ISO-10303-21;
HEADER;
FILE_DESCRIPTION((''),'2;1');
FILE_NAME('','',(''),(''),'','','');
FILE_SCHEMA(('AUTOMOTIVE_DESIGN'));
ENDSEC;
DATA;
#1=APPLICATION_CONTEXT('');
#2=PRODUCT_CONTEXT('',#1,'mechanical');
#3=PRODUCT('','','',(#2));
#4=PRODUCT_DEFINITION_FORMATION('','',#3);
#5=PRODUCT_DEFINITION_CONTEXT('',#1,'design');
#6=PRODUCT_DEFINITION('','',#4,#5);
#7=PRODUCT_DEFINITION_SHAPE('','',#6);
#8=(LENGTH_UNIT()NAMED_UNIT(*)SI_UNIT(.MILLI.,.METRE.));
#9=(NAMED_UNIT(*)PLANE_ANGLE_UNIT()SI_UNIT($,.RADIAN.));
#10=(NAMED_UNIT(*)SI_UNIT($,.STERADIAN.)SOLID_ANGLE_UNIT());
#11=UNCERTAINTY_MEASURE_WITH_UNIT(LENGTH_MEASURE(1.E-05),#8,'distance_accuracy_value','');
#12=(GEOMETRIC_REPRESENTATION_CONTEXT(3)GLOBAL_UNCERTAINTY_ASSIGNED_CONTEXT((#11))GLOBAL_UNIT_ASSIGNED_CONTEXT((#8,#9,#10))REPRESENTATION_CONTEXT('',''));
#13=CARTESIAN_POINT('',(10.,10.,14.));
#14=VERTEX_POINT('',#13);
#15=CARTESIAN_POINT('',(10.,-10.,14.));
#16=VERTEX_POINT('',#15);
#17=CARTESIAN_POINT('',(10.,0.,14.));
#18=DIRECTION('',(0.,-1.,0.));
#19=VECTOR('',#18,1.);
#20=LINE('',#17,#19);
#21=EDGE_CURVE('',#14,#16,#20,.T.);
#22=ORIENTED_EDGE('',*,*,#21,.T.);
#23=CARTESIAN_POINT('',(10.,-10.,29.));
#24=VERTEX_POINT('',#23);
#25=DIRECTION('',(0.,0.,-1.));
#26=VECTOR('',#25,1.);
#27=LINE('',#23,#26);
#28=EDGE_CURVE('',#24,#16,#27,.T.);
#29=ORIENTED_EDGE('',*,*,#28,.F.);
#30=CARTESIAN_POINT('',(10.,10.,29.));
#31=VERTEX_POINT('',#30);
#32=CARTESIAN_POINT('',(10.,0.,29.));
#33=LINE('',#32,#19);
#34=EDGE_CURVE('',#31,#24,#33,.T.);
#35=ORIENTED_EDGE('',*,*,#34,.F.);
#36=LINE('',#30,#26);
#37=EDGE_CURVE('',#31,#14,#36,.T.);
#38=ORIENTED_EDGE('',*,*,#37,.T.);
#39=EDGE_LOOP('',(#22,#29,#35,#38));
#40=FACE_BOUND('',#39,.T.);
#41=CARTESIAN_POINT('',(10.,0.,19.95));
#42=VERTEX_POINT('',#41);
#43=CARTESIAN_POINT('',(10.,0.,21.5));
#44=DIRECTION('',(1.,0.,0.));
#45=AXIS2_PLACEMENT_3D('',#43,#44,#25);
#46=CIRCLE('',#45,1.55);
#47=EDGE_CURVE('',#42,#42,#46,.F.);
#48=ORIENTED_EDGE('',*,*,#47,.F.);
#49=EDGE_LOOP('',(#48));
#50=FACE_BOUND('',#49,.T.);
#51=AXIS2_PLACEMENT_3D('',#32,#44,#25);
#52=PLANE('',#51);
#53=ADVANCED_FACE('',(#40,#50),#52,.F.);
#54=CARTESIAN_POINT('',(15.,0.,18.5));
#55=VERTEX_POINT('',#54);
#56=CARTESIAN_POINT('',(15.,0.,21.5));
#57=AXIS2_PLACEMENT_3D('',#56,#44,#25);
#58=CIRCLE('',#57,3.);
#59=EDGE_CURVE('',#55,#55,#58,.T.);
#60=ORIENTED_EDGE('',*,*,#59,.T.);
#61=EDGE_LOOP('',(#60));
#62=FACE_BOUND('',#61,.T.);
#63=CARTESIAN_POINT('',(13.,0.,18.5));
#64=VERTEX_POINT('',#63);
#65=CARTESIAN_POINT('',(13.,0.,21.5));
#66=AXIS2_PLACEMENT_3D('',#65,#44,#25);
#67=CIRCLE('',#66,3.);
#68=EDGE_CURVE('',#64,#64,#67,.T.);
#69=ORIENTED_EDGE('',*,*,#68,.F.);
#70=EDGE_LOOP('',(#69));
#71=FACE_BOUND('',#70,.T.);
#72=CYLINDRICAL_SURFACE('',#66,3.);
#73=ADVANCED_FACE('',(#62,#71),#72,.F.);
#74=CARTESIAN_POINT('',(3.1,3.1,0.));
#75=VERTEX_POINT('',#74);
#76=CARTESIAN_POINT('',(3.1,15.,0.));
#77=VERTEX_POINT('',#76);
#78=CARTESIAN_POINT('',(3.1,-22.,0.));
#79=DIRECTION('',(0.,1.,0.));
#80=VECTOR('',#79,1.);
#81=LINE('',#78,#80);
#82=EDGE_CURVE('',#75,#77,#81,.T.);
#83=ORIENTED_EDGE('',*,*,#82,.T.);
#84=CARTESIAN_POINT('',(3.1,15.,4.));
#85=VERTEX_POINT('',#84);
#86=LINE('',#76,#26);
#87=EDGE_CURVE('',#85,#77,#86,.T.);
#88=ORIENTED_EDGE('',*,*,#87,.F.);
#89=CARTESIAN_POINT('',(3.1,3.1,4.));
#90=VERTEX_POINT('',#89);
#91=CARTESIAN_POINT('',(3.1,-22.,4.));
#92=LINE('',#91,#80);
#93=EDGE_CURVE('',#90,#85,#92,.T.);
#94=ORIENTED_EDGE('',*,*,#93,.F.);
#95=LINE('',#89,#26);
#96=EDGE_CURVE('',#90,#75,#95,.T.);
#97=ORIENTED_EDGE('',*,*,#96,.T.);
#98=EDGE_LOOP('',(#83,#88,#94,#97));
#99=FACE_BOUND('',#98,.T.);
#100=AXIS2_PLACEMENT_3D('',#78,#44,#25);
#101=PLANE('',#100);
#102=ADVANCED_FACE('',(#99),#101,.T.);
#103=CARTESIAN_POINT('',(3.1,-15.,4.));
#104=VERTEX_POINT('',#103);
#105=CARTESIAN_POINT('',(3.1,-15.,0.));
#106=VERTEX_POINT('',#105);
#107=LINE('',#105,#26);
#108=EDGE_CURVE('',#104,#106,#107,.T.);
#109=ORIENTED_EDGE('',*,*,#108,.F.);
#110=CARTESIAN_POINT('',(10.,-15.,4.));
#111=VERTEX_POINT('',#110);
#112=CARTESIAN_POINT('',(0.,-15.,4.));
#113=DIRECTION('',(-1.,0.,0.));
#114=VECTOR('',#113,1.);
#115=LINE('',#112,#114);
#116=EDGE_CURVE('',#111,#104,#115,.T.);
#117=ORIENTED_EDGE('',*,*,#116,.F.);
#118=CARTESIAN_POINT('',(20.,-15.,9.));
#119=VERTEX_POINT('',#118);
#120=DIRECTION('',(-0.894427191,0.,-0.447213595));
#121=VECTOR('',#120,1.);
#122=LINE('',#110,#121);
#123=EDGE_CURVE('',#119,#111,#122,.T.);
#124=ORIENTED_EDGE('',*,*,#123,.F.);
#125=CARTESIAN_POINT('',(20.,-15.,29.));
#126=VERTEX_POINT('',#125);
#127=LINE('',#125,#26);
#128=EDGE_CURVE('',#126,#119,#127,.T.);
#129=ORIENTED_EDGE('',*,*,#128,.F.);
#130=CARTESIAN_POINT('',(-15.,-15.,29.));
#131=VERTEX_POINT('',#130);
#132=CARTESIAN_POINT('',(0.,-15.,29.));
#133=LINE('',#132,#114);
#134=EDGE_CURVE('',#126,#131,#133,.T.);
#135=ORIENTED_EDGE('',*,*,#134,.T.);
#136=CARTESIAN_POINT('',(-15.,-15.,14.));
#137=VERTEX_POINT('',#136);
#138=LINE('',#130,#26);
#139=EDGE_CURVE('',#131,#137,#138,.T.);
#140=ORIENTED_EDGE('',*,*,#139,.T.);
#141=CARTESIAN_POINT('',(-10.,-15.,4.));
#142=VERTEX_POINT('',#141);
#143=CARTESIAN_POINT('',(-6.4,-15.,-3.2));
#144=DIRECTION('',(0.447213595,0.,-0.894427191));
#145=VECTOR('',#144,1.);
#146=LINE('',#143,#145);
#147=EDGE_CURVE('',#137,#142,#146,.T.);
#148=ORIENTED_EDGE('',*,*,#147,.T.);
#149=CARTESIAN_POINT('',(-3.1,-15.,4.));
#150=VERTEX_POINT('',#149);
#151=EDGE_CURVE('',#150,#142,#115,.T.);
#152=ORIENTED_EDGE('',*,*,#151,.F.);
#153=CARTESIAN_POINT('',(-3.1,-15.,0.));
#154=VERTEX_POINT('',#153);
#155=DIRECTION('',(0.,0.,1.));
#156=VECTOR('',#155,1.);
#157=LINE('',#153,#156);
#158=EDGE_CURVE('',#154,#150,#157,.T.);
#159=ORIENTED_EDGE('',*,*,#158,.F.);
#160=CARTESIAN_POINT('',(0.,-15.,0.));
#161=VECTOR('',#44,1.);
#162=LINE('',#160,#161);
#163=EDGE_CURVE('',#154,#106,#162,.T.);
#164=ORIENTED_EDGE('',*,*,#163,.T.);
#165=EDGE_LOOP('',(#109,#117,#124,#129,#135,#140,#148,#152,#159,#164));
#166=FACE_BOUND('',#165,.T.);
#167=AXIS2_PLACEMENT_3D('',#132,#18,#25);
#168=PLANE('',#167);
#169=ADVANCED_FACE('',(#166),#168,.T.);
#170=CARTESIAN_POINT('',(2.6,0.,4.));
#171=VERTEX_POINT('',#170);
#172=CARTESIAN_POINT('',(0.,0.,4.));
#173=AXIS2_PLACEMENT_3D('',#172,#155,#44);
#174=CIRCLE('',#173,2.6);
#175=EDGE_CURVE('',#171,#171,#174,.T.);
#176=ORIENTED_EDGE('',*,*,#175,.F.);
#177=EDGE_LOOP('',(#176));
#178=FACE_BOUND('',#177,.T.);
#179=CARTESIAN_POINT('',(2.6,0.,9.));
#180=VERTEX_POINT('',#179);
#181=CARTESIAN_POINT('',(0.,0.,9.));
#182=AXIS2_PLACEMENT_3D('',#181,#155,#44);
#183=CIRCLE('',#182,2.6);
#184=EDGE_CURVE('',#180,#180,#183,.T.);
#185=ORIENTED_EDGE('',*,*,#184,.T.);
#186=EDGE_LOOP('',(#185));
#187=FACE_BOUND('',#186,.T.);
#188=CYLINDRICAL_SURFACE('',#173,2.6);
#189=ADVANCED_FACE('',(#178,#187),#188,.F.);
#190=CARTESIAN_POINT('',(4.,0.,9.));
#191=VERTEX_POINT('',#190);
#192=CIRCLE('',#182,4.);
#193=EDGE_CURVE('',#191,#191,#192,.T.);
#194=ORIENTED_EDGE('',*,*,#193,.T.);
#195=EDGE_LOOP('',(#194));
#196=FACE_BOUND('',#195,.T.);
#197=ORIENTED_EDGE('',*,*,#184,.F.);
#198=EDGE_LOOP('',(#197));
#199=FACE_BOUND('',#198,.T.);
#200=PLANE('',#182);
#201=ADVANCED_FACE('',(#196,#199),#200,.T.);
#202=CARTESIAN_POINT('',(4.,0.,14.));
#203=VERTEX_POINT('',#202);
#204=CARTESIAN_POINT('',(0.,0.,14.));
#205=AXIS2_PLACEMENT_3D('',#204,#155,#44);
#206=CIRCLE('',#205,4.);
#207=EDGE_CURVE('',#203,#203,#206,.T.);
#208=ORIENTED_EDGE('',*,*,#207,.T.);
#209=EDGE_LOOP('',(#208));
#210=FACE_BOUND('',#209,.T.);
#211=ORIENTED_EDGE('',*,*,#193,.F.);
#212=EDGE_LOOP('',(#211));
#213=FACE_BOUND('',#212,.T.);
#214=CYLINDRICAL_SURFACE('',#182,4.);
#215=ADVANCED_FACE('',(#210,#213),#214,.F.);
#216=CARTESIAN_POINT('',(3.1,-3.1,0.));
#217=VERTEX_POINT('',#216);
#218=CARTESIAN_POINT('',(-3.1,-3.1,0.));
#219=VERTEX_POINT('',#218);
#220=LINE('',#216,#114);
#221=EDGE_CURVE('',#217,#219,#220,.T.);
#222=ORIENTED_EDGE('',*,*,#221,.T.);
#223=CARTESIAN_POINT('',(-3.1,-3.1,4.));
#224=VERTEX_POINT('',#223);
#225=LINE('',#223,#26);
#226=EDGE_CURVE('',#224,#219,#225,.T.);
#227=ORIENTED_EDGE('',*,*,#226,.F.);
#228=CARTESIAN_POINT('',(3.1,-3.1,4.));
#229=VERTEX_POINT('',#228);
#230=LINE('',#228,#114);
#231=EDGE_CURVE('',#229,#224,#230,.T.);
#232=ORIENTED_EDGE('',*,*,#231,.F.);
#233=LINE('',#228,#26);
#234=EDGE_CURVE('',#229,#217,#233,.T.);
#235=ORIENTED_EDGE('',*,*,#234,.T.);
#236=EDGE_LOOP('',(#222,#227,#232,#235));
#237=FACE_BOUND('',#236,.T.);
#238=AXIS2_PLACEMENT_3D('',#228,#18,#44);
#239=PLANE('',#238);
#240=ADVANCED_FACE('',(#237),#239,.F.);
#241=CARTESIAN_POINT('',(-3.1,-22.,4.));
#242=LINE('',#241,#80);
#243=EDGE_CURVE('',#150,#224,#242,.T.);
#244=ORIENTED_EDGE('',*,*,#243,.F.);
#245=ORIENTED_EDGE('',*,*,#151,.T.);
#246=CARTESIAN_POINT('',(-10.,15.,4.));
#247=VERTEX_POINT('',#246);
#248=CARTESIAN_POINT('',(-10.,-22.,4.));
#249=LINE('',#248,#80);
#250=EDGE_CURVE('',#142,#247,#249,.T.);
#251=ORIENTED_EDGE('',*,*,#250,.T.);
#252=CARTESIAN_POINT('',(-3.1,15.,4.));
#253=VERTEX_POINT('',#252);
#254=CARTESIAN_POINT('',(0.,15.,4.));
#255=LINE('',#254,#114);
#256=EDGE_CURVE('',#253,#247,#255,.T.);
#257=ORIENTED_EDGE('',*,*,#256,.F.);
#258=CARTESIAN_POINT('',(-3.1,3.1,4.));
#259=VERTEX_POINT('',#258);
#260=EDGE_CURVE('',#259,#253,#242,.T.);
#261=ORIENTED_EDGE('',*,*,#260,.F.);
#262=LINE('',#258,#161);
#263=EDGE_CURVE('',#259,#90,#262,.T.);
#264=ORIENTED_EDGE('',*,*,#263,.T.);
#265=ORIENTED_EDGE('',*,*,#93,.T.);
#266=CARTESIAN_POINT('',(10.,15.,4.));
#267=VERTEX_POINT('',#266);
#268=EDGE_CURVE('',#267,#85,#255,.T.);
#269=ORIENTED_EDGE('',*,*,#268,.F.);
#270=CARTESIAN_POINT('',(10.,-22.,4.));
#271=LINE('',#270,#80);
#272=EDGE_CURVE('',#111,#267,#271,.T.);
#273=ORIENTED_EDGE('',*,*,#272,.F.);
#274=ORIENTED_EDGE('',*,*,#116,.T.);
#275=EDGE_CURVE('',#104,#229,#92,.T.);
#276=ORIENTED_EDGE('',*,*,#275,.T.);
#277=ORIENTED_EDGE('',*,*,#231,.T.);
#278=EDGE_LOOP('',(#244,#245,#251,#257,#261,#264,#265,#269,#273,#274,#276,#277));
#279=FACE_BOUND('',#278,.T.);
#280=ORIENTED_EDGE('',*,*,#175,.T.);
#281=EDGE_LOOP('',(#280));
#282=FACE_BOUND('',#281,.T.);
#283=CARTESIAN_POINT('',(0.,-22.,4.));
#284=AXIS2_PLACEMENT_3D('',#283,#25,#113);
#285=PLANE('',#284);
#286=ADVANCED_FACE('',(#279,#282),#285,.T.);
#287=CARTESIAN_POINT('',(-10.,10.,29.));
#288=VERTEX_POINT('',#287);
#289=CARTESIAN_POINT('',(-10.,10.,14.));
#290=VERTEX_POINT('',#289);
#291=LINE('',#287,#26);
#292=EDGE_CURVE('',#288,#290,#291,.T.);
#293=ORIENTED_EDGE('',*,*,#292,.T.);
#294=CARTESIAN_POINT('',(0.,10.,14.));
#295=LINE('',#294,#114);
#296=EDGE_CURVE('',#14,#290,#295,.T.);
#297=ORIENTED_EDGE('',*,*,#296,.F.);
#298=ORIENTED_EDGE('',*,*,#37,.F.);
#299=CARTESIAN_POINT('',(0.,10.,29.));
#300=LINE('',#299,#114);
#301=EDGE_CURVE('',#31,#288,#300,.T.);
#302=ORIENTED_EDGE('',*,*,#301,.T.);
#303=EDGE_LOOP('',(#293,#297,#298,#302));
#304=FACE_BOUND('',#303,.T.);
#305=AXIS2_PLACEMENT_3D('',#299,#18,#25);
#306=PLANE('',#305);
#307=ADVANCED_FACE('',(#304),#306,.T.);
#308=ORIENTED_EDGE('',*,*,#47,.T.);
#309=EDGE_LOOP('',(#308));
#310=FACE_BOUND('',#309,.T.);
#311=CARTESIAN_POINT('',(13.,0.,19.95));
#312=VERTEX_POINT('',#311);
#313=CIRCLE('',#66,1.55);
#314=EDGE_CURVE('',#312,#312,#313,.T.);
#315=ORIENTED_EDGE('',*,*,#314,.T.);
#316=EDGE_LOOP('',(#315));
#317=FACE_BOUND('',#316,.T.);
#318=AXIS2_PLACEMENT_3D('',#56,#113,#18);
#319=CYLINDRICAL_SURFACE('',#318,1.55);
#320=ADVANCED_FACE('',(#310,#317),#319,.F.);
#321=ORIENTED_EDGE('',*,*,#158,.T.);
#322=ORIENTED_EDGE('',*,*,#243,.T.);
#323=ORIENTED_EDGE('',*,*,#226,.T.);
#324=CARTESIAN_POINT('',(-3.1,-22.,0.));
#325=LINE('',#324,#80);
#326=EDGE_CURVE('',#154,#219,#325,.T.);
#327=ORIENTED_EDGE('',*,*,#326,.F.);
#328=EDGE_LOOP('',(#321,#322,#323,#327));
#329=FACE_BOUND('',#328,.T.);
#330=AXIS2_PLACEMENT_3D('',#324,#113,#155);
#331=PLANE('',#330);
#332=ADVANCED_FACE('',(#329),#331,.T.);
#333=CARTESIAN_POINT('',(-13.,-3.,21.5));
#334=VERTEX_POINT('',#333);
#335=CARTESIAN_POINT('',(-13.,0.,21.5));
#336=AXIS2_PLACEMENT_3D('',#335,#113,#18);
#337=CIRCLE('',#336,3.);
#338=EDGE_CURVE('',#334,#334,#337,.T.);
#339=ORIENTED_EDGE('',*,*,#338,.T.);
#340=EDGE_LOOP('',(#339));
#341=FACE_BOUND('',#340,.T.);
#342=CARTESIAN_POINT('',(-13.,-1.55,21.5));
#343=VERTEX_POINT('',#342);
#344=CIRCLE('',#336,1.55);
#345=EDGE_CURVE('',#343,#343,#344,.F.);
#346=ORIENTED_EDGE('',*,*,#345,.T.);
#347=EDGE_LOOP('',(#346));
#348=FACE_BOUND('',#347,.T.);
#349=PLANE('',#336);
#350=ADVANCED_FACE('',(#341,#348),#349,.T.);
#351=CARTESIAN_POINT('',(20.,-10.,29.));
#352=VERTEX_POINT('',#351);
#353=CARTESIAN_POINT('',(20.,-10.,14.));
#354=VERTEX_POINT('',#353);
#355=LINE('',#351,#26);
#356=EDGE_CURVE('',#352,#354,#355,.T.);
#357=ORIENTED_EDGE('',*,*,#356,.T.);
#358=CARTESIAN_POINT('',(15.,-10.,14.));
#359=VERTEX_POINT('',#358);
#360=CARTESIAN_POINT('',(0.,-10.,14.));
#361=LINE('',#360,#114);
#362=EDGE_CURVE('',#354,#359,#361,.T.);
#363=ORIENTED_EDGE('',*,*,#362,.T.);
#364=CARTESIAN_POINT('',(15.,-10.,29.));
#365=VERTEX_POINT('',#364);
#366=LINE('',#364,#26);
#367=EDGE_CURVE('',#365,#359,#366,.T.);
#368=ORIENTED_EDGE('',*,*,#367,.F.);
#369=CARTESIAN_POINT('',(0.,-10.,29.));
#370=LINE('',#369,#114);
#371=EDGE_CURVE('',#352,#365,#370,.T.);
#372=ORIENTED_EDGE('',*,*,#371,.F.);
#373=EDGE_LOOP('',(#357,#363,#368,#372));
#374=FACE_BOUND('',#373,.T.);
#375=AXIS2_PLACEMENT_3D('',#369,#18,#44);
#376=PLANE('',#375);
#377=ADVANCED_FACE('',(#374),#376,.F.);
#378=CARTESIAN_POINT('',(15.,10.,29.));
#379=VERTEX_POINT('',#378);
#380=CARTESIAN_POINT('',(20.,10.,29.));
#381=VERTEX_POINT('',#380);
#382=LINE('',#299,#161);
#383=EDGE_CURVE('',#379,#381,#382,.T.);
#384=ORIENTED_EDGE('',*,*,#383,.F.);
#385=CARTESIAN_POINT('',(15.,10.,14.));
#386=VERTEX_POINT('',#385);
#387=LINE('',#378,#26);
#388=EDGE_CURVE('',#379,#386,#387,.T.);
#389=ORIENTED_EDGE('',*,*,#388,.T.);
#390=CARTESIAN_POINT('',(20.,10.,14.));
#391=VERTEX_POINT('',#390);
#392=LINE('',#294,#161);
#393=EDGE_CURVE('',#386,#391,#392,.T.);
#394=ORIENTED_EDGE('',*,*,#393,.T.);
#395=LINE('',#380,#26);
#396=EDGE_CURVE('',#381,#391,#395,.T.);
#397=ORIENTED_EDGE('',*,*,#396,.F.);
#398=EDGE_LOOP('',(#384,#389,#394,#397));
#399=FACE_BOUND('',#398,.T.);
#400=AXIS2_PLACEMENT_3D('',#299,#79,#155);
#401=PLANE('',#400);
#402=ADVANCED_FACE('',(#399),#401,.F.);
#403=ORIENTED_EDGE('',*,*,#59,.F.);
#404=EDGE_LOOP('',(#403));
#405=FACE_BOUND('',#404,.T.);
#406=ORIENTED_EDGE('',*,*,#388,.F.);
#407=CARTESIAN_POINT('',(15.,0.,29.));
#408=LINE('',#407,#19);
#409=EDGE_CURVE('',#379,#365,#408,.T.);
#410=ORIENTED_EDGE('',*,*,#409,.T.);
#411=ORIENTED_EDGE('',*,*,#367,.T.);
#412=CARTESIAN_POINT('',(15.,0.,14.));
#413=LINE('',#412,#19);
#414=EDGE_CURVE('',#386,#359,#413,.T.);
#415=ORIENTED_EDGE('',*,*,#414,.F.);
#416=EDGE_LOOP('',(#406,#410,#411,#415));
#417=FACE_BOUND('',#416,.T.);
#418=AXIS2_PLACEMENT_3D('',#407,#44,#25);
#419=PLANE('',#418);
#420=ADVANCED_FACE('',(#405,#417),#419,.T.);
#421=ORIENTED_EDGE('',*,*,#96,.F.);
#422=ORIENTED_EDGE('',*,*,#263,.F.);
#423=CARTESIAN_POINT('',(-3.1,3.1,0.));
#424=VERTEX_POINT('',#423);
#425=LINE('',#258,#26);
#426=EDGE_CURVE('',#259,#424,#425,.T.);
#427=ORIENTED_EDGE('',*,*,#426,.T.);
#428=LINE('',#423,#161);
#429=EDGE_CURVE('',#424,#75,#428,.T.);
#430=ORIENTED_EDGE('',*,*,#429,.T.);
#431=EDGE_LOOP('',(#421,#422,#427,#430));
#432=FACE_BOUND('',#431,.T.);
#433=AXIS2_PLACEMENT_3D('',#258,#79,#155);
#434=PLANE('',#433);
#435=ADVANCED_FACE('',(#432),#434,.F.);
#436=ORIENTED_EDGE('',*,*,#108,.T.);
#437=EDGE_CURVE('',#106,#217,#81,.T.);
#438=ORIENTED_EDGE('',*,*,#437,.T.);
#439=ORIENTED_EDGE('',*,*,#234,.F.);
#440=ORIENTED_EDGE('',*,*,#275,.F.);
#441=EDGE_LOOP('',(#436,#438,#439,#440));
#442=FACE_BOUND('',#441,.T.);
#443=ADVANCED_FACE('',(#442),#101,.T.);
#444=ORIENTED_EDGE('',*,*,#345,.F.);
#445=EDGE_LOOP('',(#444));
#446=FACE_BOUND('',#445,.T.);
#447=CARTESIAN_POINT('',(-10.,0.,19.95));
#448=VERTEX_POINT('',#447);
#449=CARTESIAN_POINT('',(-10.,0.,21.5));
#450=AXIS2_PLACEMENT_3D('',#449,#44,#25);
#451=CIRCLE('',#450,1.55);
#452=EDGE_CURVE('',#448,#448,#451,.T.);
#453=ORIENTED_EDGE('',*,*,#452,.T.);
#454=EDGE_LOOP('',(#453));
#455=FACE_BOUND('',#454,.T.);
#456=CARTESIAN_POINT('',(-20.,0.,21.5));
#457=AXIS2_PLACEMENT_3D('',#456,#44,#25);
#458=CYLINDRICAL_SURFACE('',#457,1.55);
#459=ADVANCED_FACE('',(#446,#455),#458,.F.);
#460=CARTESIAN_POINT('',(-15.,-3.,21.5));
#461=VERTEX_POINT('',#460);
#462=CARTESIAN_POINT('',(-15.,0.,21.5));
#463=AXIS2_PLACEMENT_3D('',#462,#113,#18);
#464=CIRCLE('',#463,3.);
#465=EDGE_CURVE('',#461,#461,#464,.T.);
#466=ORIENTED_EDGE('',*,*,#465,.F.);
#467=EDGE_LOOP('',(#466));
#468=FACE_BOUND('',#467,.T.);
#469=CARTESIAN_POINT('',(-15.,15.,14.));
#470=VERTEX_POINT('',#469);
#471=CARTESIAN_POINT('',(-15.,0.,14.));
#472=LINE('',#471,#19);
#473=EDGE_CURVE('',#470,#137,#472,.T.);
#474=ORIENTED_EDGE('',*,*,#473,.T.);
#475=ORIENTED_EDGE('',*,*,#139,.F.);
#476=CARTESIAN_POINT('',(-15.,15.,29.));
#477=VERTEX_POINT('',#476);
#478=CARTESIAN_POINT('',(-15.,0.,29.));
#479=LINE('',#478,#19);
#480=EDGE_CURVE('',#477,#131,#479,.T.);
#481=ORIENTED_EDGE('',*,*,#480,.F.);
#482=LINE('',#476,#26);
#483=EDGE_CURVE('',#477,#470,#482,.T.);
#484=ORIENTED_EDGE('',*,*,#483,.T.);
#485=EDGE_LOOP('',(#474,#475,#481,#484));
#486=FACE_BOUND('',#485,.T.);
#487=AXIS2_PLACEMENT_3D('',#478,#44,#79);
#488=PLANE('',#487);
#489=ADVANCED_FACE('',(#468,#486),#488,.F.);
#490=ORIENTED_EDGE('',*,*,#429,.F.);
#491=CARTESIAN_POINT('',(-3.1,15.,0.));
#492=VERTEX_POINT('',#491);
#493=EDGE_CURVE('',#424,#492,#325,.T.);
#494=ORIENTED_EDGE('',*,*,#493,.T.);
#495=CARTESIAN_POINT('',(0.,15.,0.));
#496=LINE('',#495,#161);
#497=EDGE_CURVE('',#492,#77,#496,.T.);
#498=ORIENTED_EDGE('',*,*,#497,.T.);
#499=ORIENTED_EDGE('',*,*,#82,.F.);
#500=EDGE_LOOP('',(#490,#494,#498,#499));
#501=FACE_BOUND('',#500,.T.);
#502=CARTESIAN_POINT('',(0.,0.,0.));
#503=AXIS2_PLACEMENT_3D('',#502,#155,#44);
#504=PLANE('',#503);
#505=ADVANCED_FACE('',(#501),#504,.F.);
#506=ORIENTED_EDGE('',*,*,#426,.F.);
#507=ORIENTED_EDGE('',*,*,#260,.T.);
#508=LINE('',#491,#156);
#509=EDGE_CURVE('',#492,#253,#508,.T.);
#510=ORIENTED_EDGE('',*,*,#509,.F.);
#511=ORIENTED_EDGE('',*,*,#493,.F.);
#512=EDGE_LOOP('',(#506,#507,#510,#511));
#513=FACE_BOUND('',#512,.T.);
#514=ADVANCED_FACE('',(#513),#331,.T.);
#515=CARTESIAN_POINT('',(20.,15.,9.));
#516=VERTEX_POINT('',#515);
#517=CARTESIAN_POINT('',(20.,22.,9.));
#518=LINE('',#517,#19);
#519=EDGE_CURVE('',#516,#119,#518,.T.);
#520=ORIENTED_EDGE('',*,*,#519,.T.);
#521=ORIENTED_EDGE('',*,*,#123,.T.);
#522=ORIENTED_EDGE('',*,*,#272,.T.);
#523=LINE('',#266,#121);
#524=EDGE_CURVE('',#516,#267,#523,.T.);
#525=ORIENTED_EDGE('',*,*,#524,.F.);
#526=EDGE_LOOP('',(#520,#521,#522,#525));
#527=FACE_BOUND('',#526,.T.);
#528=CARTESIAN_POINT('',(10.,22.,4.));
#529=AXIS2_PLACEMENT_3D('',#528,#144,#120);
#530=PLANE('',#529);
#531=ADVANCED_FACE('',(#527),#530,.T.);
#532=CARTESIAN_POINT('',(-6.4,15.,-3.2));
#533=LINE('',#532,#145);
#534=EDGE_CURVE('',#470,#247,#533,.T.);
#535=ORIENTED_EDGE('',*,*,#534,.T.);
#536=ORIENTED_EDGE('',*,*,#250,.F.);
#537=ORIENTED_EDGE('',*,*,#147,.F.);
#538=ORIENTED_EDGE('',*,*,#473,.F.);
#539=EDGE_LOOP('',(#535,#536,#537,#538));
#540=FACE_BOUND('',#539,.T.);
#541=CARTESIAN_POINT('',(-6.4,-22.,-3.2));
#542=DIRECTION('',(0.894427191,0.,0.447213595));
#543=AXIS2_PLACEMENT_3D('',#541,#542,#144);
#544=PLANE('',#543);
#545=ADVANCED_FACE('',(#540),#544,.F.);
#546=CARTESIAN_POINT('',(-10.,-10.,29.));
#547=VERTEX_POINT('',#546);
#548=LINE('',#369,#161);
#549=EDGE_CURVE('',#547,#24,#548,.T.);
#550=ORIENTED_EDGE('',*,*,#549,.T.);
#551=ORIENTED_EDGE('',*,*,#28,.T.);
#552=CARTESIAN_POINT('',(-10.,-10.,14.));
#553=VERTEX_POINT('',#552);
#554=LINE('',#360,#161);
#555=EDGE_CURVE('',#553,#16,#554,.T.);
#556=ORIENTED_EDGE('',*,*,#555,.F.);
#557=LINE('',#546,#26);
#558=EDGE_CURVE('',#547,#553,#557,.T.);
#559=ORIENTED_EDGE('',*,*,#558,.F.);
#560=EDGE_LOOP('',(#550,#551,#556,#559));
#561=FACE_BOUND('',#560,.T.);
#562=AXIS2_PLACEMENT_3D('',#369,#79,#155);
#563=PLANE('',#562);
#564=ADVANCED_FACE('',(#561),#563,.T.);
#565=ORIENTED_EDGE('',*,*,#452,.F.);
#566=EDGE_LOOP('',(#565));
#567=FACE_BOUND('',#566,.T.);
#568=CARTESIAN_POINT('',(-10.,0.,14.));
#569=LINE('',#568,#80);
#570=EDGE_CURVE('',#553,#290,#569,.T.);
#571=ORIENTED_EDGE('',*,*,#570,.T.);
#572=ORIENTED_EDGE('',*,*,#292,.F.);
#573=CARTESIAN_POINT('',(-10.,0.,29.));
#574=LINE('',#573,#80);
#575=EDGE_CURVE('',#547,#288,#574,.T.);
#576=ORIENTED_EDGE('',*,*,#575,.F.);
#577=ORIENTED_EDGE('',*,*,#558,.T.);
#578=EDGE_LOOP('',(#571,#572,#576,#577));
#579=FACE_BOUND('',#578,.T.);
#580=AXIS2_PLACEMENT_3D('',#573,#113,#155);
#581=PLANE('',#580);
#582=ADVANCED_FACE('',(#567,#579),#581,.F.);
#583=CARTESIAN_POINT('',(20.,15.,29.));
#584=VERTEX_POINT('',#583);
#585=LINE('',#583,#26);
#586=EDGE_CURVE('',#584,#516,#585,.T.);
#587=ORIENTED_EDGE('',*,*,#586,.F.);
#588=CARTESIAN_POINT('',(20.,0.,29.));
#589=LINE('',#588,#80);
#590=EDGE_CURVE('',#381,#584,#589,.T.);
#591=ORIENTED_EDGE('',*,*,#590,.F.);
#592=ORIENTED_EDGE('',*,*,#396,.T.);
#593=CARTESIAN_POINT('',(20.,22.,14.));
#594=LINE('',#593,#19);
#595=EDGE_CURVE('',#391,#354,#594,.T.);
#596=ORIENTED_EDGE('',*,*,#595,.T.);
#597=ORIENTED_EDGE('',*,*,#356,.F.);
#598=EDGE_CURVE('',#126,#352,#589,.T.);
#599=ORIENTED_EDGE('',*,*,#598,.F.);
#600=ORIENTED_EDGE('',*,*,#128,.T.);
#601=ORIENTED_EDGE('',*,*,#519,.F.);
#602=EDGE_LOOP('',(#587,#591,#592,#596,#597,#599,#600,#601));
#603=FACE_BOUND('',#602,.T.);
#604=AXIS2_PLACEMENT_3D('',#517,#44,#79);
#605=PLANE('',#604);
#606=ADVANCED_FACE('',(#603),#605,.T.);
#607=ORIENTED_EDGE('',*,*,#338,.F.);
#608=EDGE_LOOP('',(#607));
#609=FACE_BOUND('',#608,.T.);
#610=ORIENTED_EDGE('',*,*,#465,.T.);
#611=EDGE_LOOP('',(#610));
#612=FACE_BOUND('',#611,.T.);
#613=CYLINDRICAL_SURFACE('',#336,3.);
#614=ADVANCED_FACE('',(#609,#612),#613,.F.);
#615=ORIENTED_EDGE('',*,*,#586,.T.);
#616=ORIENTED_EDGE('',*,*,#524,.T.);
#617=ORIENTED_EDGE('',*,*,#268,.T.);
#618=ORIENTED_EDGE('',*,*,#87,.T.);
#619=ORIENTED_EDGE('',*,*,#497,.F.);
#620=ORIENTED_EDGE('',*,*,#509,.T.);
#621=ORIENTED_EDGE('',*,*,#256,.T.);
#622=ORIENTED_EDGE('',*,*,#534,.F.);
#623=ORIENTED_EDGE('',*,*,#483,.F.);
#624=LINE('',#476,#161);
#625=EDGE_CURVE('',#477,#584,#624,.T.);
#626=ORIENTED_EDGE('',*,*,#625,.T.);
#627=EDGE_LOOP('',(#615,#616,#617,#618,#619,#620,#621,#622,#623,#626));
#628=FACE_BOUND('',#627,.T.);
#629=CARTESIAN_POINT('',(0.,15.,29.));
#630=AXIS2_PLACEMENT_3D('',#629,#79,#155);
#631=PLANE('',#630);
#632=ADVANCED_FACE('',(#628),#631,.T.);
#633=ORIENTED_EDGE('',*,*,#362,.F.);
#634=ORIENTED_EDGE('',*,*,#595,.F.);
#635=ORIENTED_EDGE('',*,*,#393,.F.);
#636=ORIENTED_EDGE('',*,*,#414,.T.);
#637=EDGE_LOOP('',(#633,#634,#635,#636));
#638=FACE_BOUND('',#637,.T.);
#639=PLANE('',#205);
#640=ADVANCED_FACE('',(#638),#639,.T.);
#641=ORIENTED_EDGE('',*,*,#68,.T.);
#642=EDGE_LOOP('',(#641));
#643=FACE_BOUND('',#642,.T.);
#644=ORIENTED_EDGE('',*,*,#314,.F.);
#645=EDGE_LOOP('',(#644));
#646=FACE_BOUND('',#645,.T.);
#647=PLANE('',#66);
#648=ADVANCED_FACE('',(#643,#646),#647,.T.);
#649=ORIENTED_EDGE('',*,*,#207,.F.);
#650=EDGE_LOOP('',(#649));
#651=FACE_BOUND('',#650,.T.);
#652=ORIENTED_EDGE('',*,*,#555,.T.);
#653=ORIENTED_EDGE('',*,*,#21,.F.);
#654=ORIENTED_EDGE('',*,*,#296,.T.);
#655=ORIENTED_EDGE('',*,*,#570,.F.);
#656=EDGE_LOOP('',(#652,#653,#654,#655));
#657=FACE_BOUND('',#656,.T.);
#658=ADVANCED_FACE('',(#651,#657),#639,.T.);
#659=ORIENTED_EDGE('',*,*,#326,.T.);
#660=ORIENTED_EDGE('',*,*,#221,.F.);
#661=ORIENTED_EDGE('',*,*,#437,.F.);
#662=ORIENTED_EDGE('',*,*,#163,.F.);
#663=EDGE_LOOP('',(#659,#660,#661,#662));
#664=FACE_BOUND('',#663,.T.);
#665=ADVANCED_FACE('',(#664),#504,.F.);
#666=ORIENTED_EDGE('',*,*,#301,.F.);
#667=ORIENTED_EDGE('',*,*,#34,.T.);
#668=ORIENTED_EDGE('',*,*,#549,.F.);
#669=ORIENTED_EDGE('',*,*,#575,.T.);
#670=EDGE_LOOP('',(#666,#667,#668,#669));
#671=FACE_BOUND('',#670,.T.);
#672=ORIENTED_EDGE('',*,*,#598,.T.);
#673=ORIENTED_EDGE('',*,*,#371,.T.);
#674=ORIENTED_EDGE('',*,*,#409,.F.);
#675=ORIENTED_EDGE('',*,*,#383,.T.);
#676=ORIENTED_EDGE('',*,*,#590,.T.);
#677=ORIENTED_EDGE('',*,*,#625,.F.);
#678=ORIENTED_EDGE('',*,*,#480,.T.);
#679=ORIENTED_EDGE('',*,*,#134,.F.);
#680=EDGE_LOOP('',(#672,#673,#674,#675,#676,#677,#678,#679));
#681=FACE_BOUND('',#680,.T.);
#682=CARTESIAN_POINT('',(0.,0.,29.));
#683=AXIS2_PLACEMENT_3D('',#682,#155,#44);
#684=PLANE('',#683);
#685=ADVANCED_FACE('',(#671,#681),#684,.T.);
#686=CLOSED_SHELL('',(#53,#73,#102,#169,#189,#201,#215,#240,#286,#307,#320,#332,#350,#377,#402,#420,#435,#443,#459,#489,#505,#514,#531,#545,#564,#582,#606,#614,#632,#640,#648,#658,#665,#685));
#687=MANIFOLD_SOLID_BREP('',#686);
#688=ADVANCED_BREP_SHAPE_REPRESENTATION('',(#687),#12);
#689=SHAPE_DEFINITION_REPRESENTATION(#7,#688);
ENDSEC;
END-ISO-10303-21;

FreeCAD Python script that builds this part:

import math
import FreeCAD as App
import Part
import Sketcher

V = App.Vector

doc = App.newDocument("Part")
body = doc.addObject("PartDesign::Body", "Body")

# Sketch on XY plane
sketch1 = doc.addObject("Sketcher::SketchObject", "Sketch")
body.addObject(sketch1)
sketch1.AttachmentSupport = (doc.XY_Plane, [""])
sketch1.MapMode = "FlatFace"
sketch1.addGeometry(Part.LineSegment(V(-15, 22, 0), V(-15, -22, 0)), False)
sketch1.addGeometry(Part.LineSegment(V(-15, -22, 0), V(15, -22, 0)), False)
sketch1.addGeometry(Part.LineSegment(V(15, -22, 0), V(15, 22, 0)), False)
sketch1.addGeometry(Part.LineSegment(V(15, 22, 0), V(-15, 22, 0)), False)
sketch1.addConstraint(Sketcher.Constraint("Coincident", 0, 2, 1, 1))
sketch1.addConstraint(Sketcher.Constraint("Coincident", 1, 2, 2, 1))
sketch1.addConstraint(Sketcher.Constraint("Coincident", 2, 2, 3, 1))
sketch1.addConstraint(Sketcher.Constraint("Coincident", 3, 2, 0, 1))
sketch1.addConstraint(Sketcher.Constraint("Vertical", 0))
sketch1.addConstraint(Sketcher.Constraint("Horizontal", 1))
sketch1.addConstraint(Sketcher.Constraint("Vertical", 2))
sketch1.addConstraint(Sketcher.Constraint("Horizontal", 3))
sketch1.addConstraint(Sketcher.Constraint("Symmetric", 0, 2, 2, 2, -1, 1))
sketch1.addConstraint(Sketcher.Constraint("DistanceX", 1, 1, 1, 2, 30.0))
sketch1.addConstraint(Sketcher.Constraint("DistanceY", 0, 2, 0, 1, 44.0))
pad1 = doc.addObject("PartDesign::Pad", "Pad")
body.addObject(pad1)
pad1.Profile = sketch1
pad1.Length = 14

# Sketch on XZ plane
sketch2 = doc.addObject("Sketcher::SketchObject", "Sketch001")
body.addObject(sketch2)
sketch2.AttachmentSupport = (doc.XZ_Plane, [""])
sketch2.MapMode = "FlatFace"
sketch2.AttachmentOffset = App.Placement(V(0, 0, -22), App.Rotation())
sketch2.addGeometry(Part.LineSegment(V(-15, 0, 0), V(-15, 14, 0)), False)
sketch2.addGeometry(Part.LineSegment(V(-15, 14, 0), V(-10, 4, 0)), False)
sketch2.addGeometry(Part.LineSegment(V(-10, 4, 0), V(-3.1, 4, 0)), False)
sketch2.addGeometry(Part.LineSegment(V(-3.1, 4, 0), V(-3.1, 0, 0)), False)
sketch2.addGeometry(Part.LineSegment(V(-3.1, 0, 0), V(-15, 0, 0)), False)
sketch2.addGeometry(Part.LineSegment(V(3.1, 4, 0), V(10, 4, 0)), False)
sketch2.addGeometry(Part.LineSegment(V(10, 4, 0), V(15, 14, 0)), False)
sketch2.addGeometry(Part.LineSegment(V(15, 14, 0), V(15, 0, 0)), False)
sketch2.addGeometry(Part.LineSegment(V(15, 0, 0), V(3.1, 0, 0)), False)
sketch2.addGeometry(Part.LineSegment(V(3.1, 0, 0), V(3.1, 4, 0)), False)
sketch2.addConstraint(Sketcher.Constraint("Coincident", 0, 2, 1, 1))
sketch2.addConstraint(Sketcher.Constraint("Coincident", 1, 2, 2, 1))
sketch2.addConstraint(Sketcher.Constraint("Coincident", 2, 2, 3, 1))
sketch2.addConstraint(Sketcher.Constraint("Coincident", 3, 2, 4, 1))
sketch2.addConstraint(Sketcher.Constraint("Coincident", 4, 2, 0, 1))
sketch2.addConstraint(Sketcher.Constraint("Coincident", 5, 2, 6, 1))
sketch2.addConstraint(Sketcher.Constraint("Coincident", 6, 2, 7, 1))
sketch2.addConstraint(Sketcher.Constraint("Coincident", 7, 2, 8, 1))
sketch2.addConstraint(Sketcher.Constraint("Coincident", 8, 2, 9, 1))
sketch2.addConstraint(Sketcher.Constraint("Coincident", 9, 2, 5, 1))
sketch2.addConstraint(Sketcher.Constraint("Vertical", 0))
sketch2.addConstraint(Sketcher.Constraint("Horizontal", 2))
sketch2.addConstraint(Sketcher.Constraint("Vertical", 3))
sketch2.addConstraint(Sketcher.Constraint("Horizontal", 4))
sketch2.addConstraint(Sketcher.Constraint("Horizontal", 5))
sketch2.addConstraint(Sketcher.Constraint("Vertical", 7))
sketch2.addConstraint(Sketcher.Constraint("Horizontal", 8))
sketch2.addConstraint(Sketcher.Constraint("Vertical", 9))
sketch2.addConstraint(Sketcher.Constraint("Symmetric", 4, 2, 7, 2, -1, 1))
sketch2.addConstraint(Sketcher.Constraint("Symmetric", 1, 2, 5, 2, -2))
sketch2.addConstraint(Sketcher.Constraint("Symmetric", 3, 2, 8, 2, -2))
sketch2.addConstraint(Sketcher.Constraint("Horizontal", 0, 2, 6, 2))
sketch2.addConstraint(Sketcher.Constraint("DistanceY", 0, 1, 0, 2, 14.0))
sketch2.addConstraint(Sketcher.Constraint("DistanceY", 3, 2, 3, 1, 4.0))
sketch2.addConstraint(Sketcher.Constraint("DistanceX", 2, 1, 2, 2, 6.9))
sketch2.addConstraint(Sketcher.Constraint("DistanceX", 4, 2, 4, 1, 11.9))
sketch2.addConstraint(Sketcher.Constraint("DistanceX", 0, 2, -1, 1, 15.0))
pocket1 = doc.addObject("PartDesign::Pocket", "Pocket")
body.addObject(pocket1)
pocket1.Profile = sketch2
pocket1.Length = 44
pocket1.Reversed = True

# Sketch on XY plane
sketch3 = doc.addObject("Sketcher::SketchObject", "Sketch002")
body.addObject(sketch3)
sketch3.AttachmentSupport = (doc.XY_Plane, [""])
sketch3.MapMode = "FlatFace"
sketch3.addGeometry(Part.LineSegment(V(3, 3, 0), V(3, -3, 0)), False)
sketch3.addGeometry(Part.LineSegment(V(3, -3, 0), V(-3, -3, 0)), False)
sketch3.addGeometry(Part.LineSegment(V(-3, -3, 0), V(-3, 3, 0)), False)
sketch3.addGeometry(Part.LineSegment(V(-3, 3, 0), V(3, 3, 0)), False)
sketch3.addConstraint(Sketcher.Constraint("Coincident", 0, 2, 1, 1))
sketch3.addConstraint(Sketcher.Constraint("Coincident", 1, 2, 2, 1))
sketch3.addConstraint(Sketcher.Constraint("Coincident", 2, 2, 3, 1))
sketch3.addConstraint(Sketcher.Constraint("Coincident", 3, 2, 0, 1))
sketch3.addConstraint(Sketcher.Constraint("Vertical", 0))
sketch3.addConstraint(Sketcher.Constraint("Horizontal", 1))
sketch3.addConstraint(Sketcher.Constraint("Vertical", 2))
sketch3.addConstraint(Sketcher.Constraint("Horizontal", 3))
sketch3.addConstraint(Sketcher.Constraint("Symmetric", 0, 2, 2, 2, -1, 1))
sketch3.addConstraint(Sketcher.Constraint("Equal", 3, 0))
sketch3.addConstraint(Sketcher.Constraint("DistanceX", 1, 2, 1, 1, 6.2))
pocket2 = doc.addObject("PartDesign::Pocket", "Pocket001")
body.addObject(pocket2)
pocket2.Profile = sketch3
pocket2.Length = 4
pocket2.Reversed = True

# Sketch on XY plane
sketch4 = doc.addObject("Sketcher::SketchObject", "Sketch003")
body.addObject(sketch4)
sketch4.AttachmentSupport = (doc.XY_Plane, [""])
sketch4.MapMode = "FlatFace"
sketch4.AttachmentOffset = App.Placement(V(0, 0, 14), App.Rotation())
sketch4.addGeometry(Part.Circle(V(0, 0, 0), V(0, 0, 1), 4), False)
sketch4.addConstraint(Sketcher.Constraint("Coincident", 0, 3, -1, 1))
sketch4.addConstraint(Sketcher.Constraint("Diameter", 0, 8.0))
pocket3 = doc.addObject("PartDesign::Pocket", "Pocket002")
body.addObject(pocket3)
pocket3.Profile = sketch4
pocket3.Length = 5

# Sketch on XY plane
sketch5 = doc.addObject("Sketcher::SketchObject", "Sketch004")
body.addObject(sketch5)
sketch5.AttachmentSupport = (doc.XY_Plane, [""])
sketch5.MapMode = "FlatFace"
sketch5.AttachmentOffset = App.Placement(V(0, 0, 9), App.Rotation())
sketch5.addGeometry(Part.Circle(V(0, 0, 0), V(0, 0, 1), 2.6), False)
sketch5.addConstraint(Sketcher.Constraint("Coincident", 0, 3, -1, 1))
sketch5.addConstraint(Sketcher.Constraint("Diameter", 0, 5.2))
pocket4 = doc.addObject("PartDesign::Pocket", "Pocket003")
body.addObject(pocket4)
pocket4.Profile = sketch5
pocket4.Length = 5

# Sketch on XZ plane
sketch6 = doc.addObject("Sketcher::SketchObject", "Sketch005")
body.addObject(sketch6)
sketch6.AttachmentSupport = (doc.XZ_Plane, [""])
sketch6.MapMode = "FlatFace"
sketch6.AttachmentOffset = App.Placement(V(0, 0, 22), App.Rotation())
sketch6.addGeometry(Part.LineSegment(V(20, 14, 0), V(10, 14, 0)), False)
sketch6.addGeometry(Part.LineSegment(V(10, 14, 0), V(10, 4, 0)), False)
sketch6.addGeometry(Part.LineSegment(V(10, 4, 0), V(20, 9, 0)), False)
sketch6.addGeometry(Part.LineSegment(V(20, 9, 0), V(20, 14, 0)), False)
sketch6.addConstraint(Sketcher.Constraint("Coincident", 0, 2, 1, 1))
sketch6.addConstraint(Sketcher.Constraint("Coincident", 1, 2, 2, 1))
sketch6.addConstraint(Sketcher.Constraint("Coincident", 2, 2, 3, 1))
sketch6.addConstraint(Sketcher.Constraint("Coincident", 3, 2, 0, 1))
sketch6.addConstraint(Sketcher.Constraint("Horizontal", 0))
sketch6.addConstraint(Sketcher.Constraint("Vertical", 1))
sketch6.addConstraint(Sketcher.Constraint("Vertical", 3))
sketch6.addConstraint(Sketcher.Constraint("Equal", 0, 1))
sketch6.addConstraint(Sketcher.Constraint("DistanceX", 0, 2, 0, 1, 10.0))
sketch6.addConstraint(Sketcher.Constraint("DistanceY", 3, 1, 3, 2, 5.0))
sketch6.addConstraint(Sketcher.Constraint("DistanceX", -1, 1, 0, 2, 10.0))
sketch6.addConstraint(Sketcher.Constraint("DistanceY", -1, 1, 0, 2, 14.0))
pad2 = doc.addObject("PartDesign::Pad", "Pad001")
body.addObject(pad2)
pad2.Profile = sketch6
pad2.Length = 44
pad2.Reversed = True

# Sketch on XY plane
sketch7 = doc.addObject("Sketcher::SketchObject", "Sketch006")
body.addObject(sketch7)
sketch7.AttachmentSupport = (doc.XY_Plane, [""])
sketch7.MapMode = "FlatFace"
sketch7.AttachmentOffset = App.Placement(V(0, 0, 14), App.Rotation())
sketch7.addGeometry(Part.LineSegment(V(-15, -15, 0), V(20, -15, 0)), False)
sketch7.addGeometry(Part.LineSegment(V(20, -15, 0), V(20, -10, 0)), False)
sketch7.addGeometry(Part.LineSegment(V(20, -10, 0), V(15, -10, 0)), False)
sketch7.addGeometry(Part.LineSegment(V(15, -10, 0), V(15, 10, 0)), False)
sketch7.addGeometry(Part.LineSegment(V(15, 10, 0), V(20, 10, 0)), False)
sketch7.addGeometry(Part.LineSegment(V(20, 10, 0), V(20, 15, 0)), False)
sketch7.addGeometry(Part.LineSegment(V(20, 15, 0), V(-15, 15, 0)), False)
sketch7.addGeometry(Part.LineSegment(V(-15, 15, 0), V(-15, -15, 0)), False)
sketch7.addGeometry(Part.LineSegment(V(10, 10, 0), V(10, -10, 0)), False)
sketch7.addGeometry(Part.LineSegment(V(10, -10, 0), V(-10, -10, 0)), False)
sketch7.addGeometry(Part.LineSegment(V(-10, -10, 0), V(-10, 10, 0)), False)
sketch7.addGeometry(Part.LineSegment(V(-10, 10, 0), V(10, 10, 0)), False)
sketch7.addConstraint(Sketcher.Constraint("Coincident", 0, 2, 1, 1))
sketch7.addConstraint(Sketcher.Constraint("Coincident", 1, 2, 2, 1))
sketch7.addConstraint(Sketcher.Constraint("Coincident", 2, 2, 3, 1))
sketch7.addConstraint(Sketcher.Constraint("Coincident", 3, 2, 4, 1))
sketch7.addConstraint(Sketcher.Constraint("Coincident", 4, 2, 5, 1))
sketch7.addConstraint(Sketcher.Constraint("Coincident", 5, 2, 6, 1))
sketch7.addConstraint(Sketcher.Constraint("Coincident", 6, 2, 7, 1))
sketch7.addConstraint(Sketcher.Constraint("Coincident", 7, 2, 0, 1))
sketch7.addConstraint(Sketcher.Constraint("Coincident", 8, 2, 9, 1))
sketch7.addConstraint(Sketcher.Constraint("Coincident", 9, 2, 10, 1))
sketch7.addConstraint(Sketcher.Constraint("Coincident", 10, 2, 11, 1))
sketch7.addConstraint(Sketcher.Constraint("Coincident", 11, 2, 8, 1))
sketch7.addConstraint(Sketcher.Constraint("Horizontal", 0))
sketch7.addConstraint(Sketcher.Constraint("Vertical", 1))
sketch7.addConstraint(Sketcher.Constraint("Horizontal", 2))
sketch7.addConstraint(Sketcher.Constraint("Vertical", 3))
sketch7.addConstraint(Sketcher.Constraint("Horizontal", 4))
sketch7.addConstraint(Sketcher.Constraint("Vertical", 5))
sketch7.addConstraint(Sketcher.Constraint("Horizontal", 6))
sketch7.addConstraint(Sketcher.Constraint("Vertical", 7))
sketch7.addConstraint(Sketcher.Constraint("Vertical", 8))
sketch7.addConstraint(Sketcher.Constraint("Horizontal", 9))
sketch7.addConstraint(Sketcher.Constraint("Vertical", 10))
sketch7.addConstraint(Sketcher.Constraint("Horizontal", 11))
sketch7.addConstraint(Sketcher.Constraint("Symmetric", 8, 2, 10, 2, -1, 1))
sketch7.addConstraint(Sketcher.Constraint("Symmetric", 1, 2, 4, 2, -1))
sketch7.addConstraint(Sketcher.Constraint("Horizontal", 2, 2, 8, 2))
sketch7.addConstraint(Sketcher.Constraint("Equal", 4, 1))
sketch7.addConstraint(Sketcher.Constraint("Equal", 11, 3))
sketch7.addConstraint(Sketcher.Constraint("Equal", 1, 5))
sketch7.addConstraint(Sketcher.Constraint("DistanceX", 0, 1, 0, 2, 35.0))
sketch7.addConstraint(Sketcher.Constraint("DistanceX", 2, 2, 2, 1, 5.0))
sketch7.addConstraint(Sketcher.Constraint("DistanceX", 9, 2, 9, 1, 20.0))
sketch7.addConstraint(Sketcher.Constraint("DistanceX", -1, 1, 0, 2, 20.0))
pad3 = doc.addObject("PartDesign::Pad", "Pad002")
body.addObject(pad3)
pad3.Profile = sketch7
pad3.Length = 15

# Sketch on XZ plane
sketch8 = doc.addObject("Sketcher::SketchObject", "Sketch007")
body.addObject(sketch8)
sketch8.AttachmentSupport = (doc.XZ_Plane, [""])
sketch8.MapMode = "FlatFace"
sketch8.AttachmentOffset = App.Placement(V(0, 0, -15), App.Rotation())
sketch8.addGeometry(Part.LineSegment(V(-15, 24, 0), V(-15, 29, 0)), False)
sketch8.addGeometry(Part.LineSegment(V(-15, 29, 0), V(20, 29, 0)), False)
sketch8.addGeometry(Part.LineSegment(V(20, 29, 0), V(20, 24, 0)), False)
sketch8.addGeometry(Part.LineSegment(V(20, 24, 0), V(-15, 24, 0)), False)
sketch8.addConstraint(Sketcher.Constraint("Coincident", 0, 2, 1, 1))
sketch8.addConstraint(Sketcher.Constraint("Coincident", 1, 2, 2, 1))
sketch8.addConstraint(Sketcher.Constraint("Coincident", 2, 2, 3, 1))
sketch8.addConstraint(Sketcher.Constraint("Coincident", 3, 2, 0, 1))
sketch8.addConstraint(Sketcher.Constraint("Vertical", 0))
sketch8.addConstraint(Sketcher.Constraint("Horizontal", 1))
sketch8.addConstraint(Sketcher.Constraint("Vertical", 2))
sketch8.addConstraint(Sketcher.Constraint("Horizontal", 3))
sketch8.addConstraint(Sketcher.Constraint("DistanceX", 1, 1, 1, 2, 35.0))
sketch8.addConstraint(Sketcher.Constraint("DistanceY", 0, 1, 0, 2, 5.0))
sketch8.addConstraint(Sketcher.Constraint("DistanceX", 0, 2, -1, 1, 15.0))
sketch8.addConstraint(Sketcher.Constraint("DistanceY", -1, 1, 0, 2, 29.0))
pad4 = doc.addObject("PartDesign::Pad", "Pad003")
body.addObject(pad4)
pad4.Profile = sketch8
pad4.Length = 7
pad4.Reversed = True

# Sketch on YZ plane
sketch9 = doc.addObject("Sketcher::SketchObject", "Sketch008")
body.addObject(sketch9)
sketch9.AttachmentSupport = (doc.YZ_Plane, [""])
sketch9.MapMode = "FlatFace"
sketch9.AttachmentOffset = App.Placement(V(0, 0, -10), App.Rotation())
sketch9.addGeometry(Part.ArcOfCircle(Part.Circle(V(0, 21.5, 0), V(0, 0, 1), 1.6), math.radians(-90), math.radians(37)), False)
sketch9.addGeometry(Part.ArcOfCircle(Part.Circle(V(0, 21.5, 0), V(0, 0, 1), 1.6), math.radians(37), math.radians(217)), False)
sketch9.addGeometry(Part.ArcOfCircle(Part.Circle(V(0, 21.5, 0), V(0, 0, 1), 1.6), math.radians(-143), math.radians(-90)), False)
sketch9.addConstraint(Sketcher.Constraint("Tangent", 0, 2, 1, 1))
sketch9.addConstraint(Sketcher.Constraint("Tangent", 1, 2, 2, 1))
sketch9.addConstraint(Sketcher.Constraint("Tangent", 2, 2, 0, 1))
sketch9.addConstraint(Sketcher.Constraint("PointOnObject", 0, 3, -2))
sketch9.addConstraint(Sketcher.Constraint("PointOnObject", 2, 2, -2))
sketch9.addConstraint(Sketcher.Constraint("Radius", 0, 1.55))
sketch9.addConstraint(Sketcher.Constraint("DistanceY", -1, 1, 0, 3, 21.5))
sketch9.addConstraint(Sketcher.Constraint("DistanceX", -1, 1, 0, 2, 1.24))
sketch9.addConstraint(Sketcher.Constraint("DistanceX", 1, 2, -1, 1, 1.24))
pocket5 = doc.addObject("PartDesign::Pocket", "Pocket004")
body.addObject(pocket5)
pocket5.Profile = sketch9
pocket5.Length = 10

# Sketch on YZ plane
sketch10 = doc.addObject("Sketcher::SketchObject", "Sketch009")
body.addObject(sketch10)
sketch10.AttachmentSupport = (doc.YZ_Plane, [""])
sketch10.MapMode = "FlatFace"
sketch10.AttachmentOffset = App.Placement(V(0, 0, 15), App.Rotation())
sketch10.addGeometry(Part.Circle(V(0, 21.5, 0), V(0, 0, 1), 1.6), False)
sketch10.addConstraint(Sketcher.Constraint("PointOnObject", 0, 3, -2))
sketch10.addConstraint(Sketcher.Constraint("Diameter", 0, 3.1))
sketch10.addConstraint(Sketcher.Constraint("DistanceY", -1, 1, 0, 3, 21.5))
pocket6 = doc.addObject("PartDesign::Pocket", "Pocket005")
body.addObject(pocket6)
pocket6.Profile = sketch10
pocket6.Length = 30

# Sketch on YZ plane
sketch11 = doc.addObject("Sketcher::SketchObject", "Sketch010")
body.addObject(sketch11)
sketch11.AttachmentSupport = (doc.YZ_Plane, [""])
sketch11.MapMode = "FlatFace"
sketch11.AttachmentOffset = App.Placement(V(0, 0, 15), App.Rotation())
sketch11.addGeometry(Part.Circle(V(0, 21.5, 0), V(0, 0, 1), 3), False)
sketch11.addConstraint(Sketcher.Constraint("PointOnObject", 0, 3, -2))
sketch11.addConstraint(Sketcher.Constraint("Diameter", 0, 6.0))
sketch11.addConstraint(Sketcher.Constraint("DistanceY", -1, 1, 0, 3, 21.5))
pocket7 = doc.addObject("PartDesign::Pocket", "Pocket006")
body.addObject(pocket7)
pocket7.Profile = sketch11
pocket7.Length = 2

# Sketch on YZ plane
sketch12 = doc.addObject("Sketcher::SketchObject", "Sketch011")
body.addObject(sketch12)
sketch12.AttachmentSupport = (doc.YZ_Plane, [""])
sketch12.MapMode = "FlatFace"
sketch12.AttachmentOffset = App.Placement(V(0, 0, -13), App.Rotation())
sketch12.addGeometry(Part.Circle(V(0, 21.5, 0), V(0, 0, 1), 3), False)
sketch12.addConstraint(Sketcher.Constraint("PointOnObject", 0, 3, -2))
sketch12.addConstraint(Sketcher.Constraint("Diameter", 0, 6.0))
sketch12.addConstraint(Sketcher.Constraint("DistanceY", -1, 1, 0, 3, 21.5))
pocket8 = doc.addObject("PartDesign::Pocket", "Pocket007")
body.addObject(pocket8)
pocket8.Profile = sketch12
pocket8.Length = 2

# Sketch on XY plane
sketch13 = doc.addObject("Sketcher::SketchObject", "Sketch012")
body.addObject(sketch13)
sketch13.AttachmentSupport = (doc.XY_Plane, [""])
sketch13.MapMode = "FlatFace"
sketch13.AttachmentOffset = App.Placement(V(0, 0, 29), App.Rotation())
sketch13.addGeometry(Part.LineSegment(V(-15, 22, 0), V(-15, 15, 0)), False)
sketch13.addGeometry(Part.LineSegment(V(-15, 15, 0), V(20, 15, 0)), False)
sketch13.addGeometry(Part.LineSegment(V(20, 15, 0), V(20, 22, 0)), False)
sketch13.addGeometry(Part.LineSegment(V(20, 22, 0), V(-15, 22, 0)), False)
sketch13.addConstraint(Sketcher.Constraint("Coincident", 0, 2, 1, 1))
sketch13.addConstraint(Sketcher.Constraint("Coincident", 1, 2, 2, 1))
sketch13.addConstraint(Sketcher.Constraint("Coincident", 2, 2, 3, 1))
sketch13.addConstraint(Sketcher.Constraint("Coincident", 3, 2, 0, 1))
sketch13.addConstraint(Sketcher.Constraint("Vertical", 0))
sketch13.addConstraint(Sketcher.Constraint("Horizontal", 1))
sketch13.addConstraint(Sketcher.Constraint("Vertical", 2))
sketch13.addConstraint(Sketcher.Constraint("Horizontal", 3))
sketch13.addConstraint(Sketcher.Constraint("DistanceX", 1, 1, 1, 2, 35.0))
sketch13.addConstraint(Sketcher.Constraint("DistanceY", 0, 2, 0, 1, 7.0))
sketch13.addConstraint(Sketcher.Constraint("DistanceX", 0, 2, -1, 1, 15.0))
sketch13.addConstraint(Sketcher.Constraint("DistanceY", -1, 1, 0, 2, 15.0))
pocket9 = doc.addObject("PartDesign::Pocket", "Pocket008")
body.addObject(pocket9)
pocket9.Profile = sketch13
pocket9.Length = 10

# Sketch on XY plane
sketch14 = doc.addObject("Sketcher::SketchObject", "Sketch013")
body.addObject(sketch14)
sketch14.AttachmentSupport = (doc.XY_Plane, [""])
sketch14.MapMode = "FlatFace"
sketch14.AttachmentOffset = App.Placement(V(0, 0, 14), App.Rotation())
sketch14.addGeometry(Part.LineSegment(V(-15, 22, 0), V(-15, 15, 0)), False)
sketch14.addGeometry(Part.LineSegment(V(-15, 15, 0), V(20, 15, 0)), False)
sketch14.addGeometry(Part.LineSegment(V(20, 15, 0), V(20, 22, 0)), False)
sketch14.addGeometry(Part.LineSegment(V(20, 22, 0), V(-15, 22, 0)), False)
sketch14.addGeometry(Part.LineSegment(V(-15, -15, 0), V(-15, -22, 0)), False)
sketch14.addGeometry(Part.LineSegment(V(-15, -22, 0), V(20, -22, 0)), False)
sketch14.addGeometry(Part.LineSegment(V(20, -22, 0), V(20, -15, 0)), False)
sketch14.addGeometry(Part.LineSegment(V(20, -15, 0), V(-15, -15, 0)), False)
sketch14.addConstraint(Sketcher.Constraint("Coincident", 0, 2, 1, 1))
sketch14.addConstraint(Sketcher.Constraint("Coincident", 1, 2, 2, 1))
sketch14.addConstraint(Sketcher.Constraint("Coincident", 2, 2, 3, 1))
sketch14.addConstraint(Sketcher.Constraint("Coincident", 3, 2, 0, 1))
sketch14.addConstraint(Sketcher.Constraint("Coincident", 4, 2, 5, 1))
sketch14.addConstraint(Sketcher.Constraint("Coincident", 5, 2, 6, 1))
sketch14.addConstraint(Sketcher.Constraint("Coincident", 6, 2, 7, 1))
sketch14.addConstraint(Sketcher.Constraint("Coincident", 7, 2, 4, 1))
sketch14.addConstraint(Sketcher.Constraint("Vertical", 0))
sketch14.addConstraint(Sketcher.Constraint("Horizontal", 1))
sketch14.addConstraint(Sketcher.Constraint("Vertical", 2))
sketch14.addConstraint(Sketcher.Constraint("Horizontal", 3))
sketch14.addConstraint(Sketcher.Constraint("Vertical", 4))
sketch14.addConstraint(Sketcher.Constraint("Horizontal", 5))
sketch14.addConstraint(Sketcher.Constraint("Vertical", 6))
sketch14.addConstraint(Sketcher.Constraint("Horizontal", 7))
sketch14.addConstraint(Sketcher.Constraint("Symmetric", 3, 2, 4, 2, -1))
sketch14.addConstraint(Sketcher.Constraint("Symmetric", 1, 2, 6, 2, -1))
sketch14.addConstraint(Sketcher.Constraint("DistanceX", 1, 1, 1, 2, 35.0))
sketch14.addConstraint(Sketcher.Constraint("DistanceY", 0, 2, 0, 1, 7.0))
sketch14.addConstraint(Sketcher.Constraint("DistanceX", 0, 2, -1, 1, 15.0))
sketch14.addConstraint(Sketcher.Constraint("DistanceY", -1, 1, 0, 2, 15.0))
pocket10 = doc.addObject("PartDesign::Pocket", "Pocket009")
body.addObject(pocket10)
pocket10.Profile = sketch14
pocket10.Length = 20

doc.recompute()
